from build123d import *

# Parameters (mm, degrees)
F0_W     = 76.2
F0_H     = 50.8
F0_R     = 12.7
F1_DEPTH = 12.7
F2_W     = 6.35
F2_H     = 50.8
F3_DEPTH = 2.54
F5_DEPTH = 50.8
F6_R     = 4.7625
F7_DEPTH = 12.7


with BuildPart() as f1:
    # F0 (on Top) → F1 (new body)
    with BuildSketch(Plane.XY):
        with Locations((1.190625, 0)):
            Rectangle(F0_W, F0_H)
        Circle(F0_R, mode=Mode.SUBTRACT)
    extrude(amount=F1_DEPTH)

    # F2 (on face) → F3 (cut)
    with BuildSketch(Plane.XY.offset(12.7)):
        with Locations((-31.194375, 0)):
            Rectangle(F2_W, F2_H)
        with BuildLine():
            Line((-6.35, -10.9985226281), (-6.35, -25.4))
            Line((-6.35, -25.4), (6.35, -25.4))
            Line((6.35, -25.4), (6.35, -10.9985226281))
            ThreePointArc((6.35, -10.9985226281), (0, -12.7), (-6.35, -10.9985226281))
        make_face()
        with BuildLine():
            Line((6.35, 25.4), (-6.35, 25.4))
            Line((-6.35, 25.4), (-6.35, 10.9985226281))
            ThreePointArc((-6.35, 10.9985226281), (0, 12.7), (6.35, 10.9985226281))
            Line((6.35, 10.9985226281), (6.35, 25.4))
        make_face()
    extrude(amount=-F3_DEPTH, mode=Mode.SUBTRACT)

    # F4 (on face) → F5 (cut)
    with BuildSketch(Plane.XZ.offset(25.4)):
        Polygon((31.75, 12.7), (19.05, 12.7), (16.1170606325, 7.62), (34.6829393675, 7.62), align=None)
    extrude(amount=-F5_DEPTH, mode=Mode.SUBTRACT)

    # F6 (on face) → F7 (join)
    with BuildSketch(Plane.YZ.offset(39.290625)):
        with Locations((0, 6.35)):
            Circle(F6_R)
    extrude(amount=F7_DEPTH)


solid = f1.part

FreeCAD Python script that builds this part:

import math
import FreeCAD as App
import Part
import Sketcher

V = App.Vector
Q = App.Units.Quantity

doc = App.newDocument("Part")
body = doc.addObject("PartDesign::Body", "Body")

# Sketch on XY plane
sketch1 = body.newObject("Sketcher::SketchObject", "Sketch")
sketch1.AttachmentSupport = (doc.getObject("XY_Plane"), [""])
sketch1.MapMode = "FlatFace"
sketch1.addGeometry(Part.LineSegment(V(-37, 25, 0), V(-37, -25, 0)), False)
sketch1.addGeometry(Part.LineSegment(V(-37, -25, 0), V(39, -25, 0)), False)
sketch1.addGeometry(Part.LineSegment(V(39, -25, 0), V(39, 25, 0)), False)
sketch1.addGeometry(Part.LineSegment(V(39, 25, 0), V(-37, 25, 0)), False)
sketch1.addGeometry(Part.Circle(V(0, 0, 0), V(0, 0, 1), 13), False)
sketch1.addConstraint(Sketcher.Constraint("Coincident", 0, 2, 1, 1))
sketch1.addConstraint(Sketcher.Constraint("Coincident", 1, 2, 2, 1))
sketch1.addConstraint(Sketcher.Constraint("Coincident", 2, 2, 3, 1))
sketch1.addConstraint(Sketcher.Constraint("Coincident", 3, 2, 0, 1))
sketch1.addConstraint(Sketcher.Constraint("Vertical", 0))
sketch1.addConstraint(Sketcher.Constraint("Horizontal", 1))
sketch1.addConstraint(Sketcher.Constraint("Vertical", 2))
sketch1.addConstraint(Sketcher.Constraint("Horizontal", 3))
sketch1.addConstraint(Sketcher.Constraint("Coincident", 4, 3, -1, 1))
sketch1.addConstraint(Sketcher.Constraint("Diameter", 4, Q("1 in")))
sketch1.addConstraint(Sketcher.Constraint("DistanceX", 1, 1, 1, 2, Q("3 in")))
sketch1.addConstraint(Sketcher.Constraint("DistanceY", 0, 2, 0, 1, Q("2 in")))
sketch1.addConstraint(Sketcher.Constraint("DistanceY", 0, 2, -1, 1, Q("1 in")))
sketch1.addConstraint(Sketcher.Constraint("DistanceX", 0, 2, -1, 1, Q("1.453125 in")))
pad1 = body.newObject("PartDesign::Pad", "Pad")
pad1.Profile = sketch1
pad1.Length = Q("0.5 in")

# Sketch on XY plane
sketch2 = body.newObject("Sketcher::SketchObject", "Sketch001")
sketch2.AttachmentSupport = (doc.getObject("XY_Plane"), [""])
sketch2.MapMode = "FlatFace"
sketch2.AttachmentOffset = App.Placement(V(0, 0, 0.5 * 25.4), App.Rotation())
sketch2.addGeometry(Part.LineSegment(V(-34, 25, 0), V(-34, -25, 0)), False)
sketch2.addGeometry(Part.LineSegment(V(-34, -25, 0), V(-28, -25, 0)), False)
sketch2.addGeometry(Part.LineSegment(V(-28, -25, 0), V(-28, 25, 0)), False)
sketch2.addGeometry(Part.LineSegment(V(-28, 25, 0), V(-34, 25, 0)), False)
sketch2.addGeometry(Part.LineSegment(V(-6, -11, 0), V(-6, -25, 0)), False)
sketch2.addGeometry(Part.LineSegment(V(-6, -25, 0), V(6, -25, 0)), False)
sketch2.addGeometry(Part.LineSegment(V(6, -25, 0), V(6, -11, 0)), False)
sketch2.addGeometry(Part.ArcOfCircle(Part.Circle(V(0, 0, 0), V(0, 0, 1), 13), math.radians(-120), math.radians(-60)), False)
sketch2.addGeometry(Part.LineSegment(V(6, 25, 0), V(-6, 25, 0)), False)
sketch2.addGeometry(Part.LineSegment(V(-6, 25, 0), V(-6, 11, 0)), False)
sketch2.addGeometry(Part.ArcOfCircle(Part.Circle(V(0, 0, 0), V(0, 0, 1), 13), math.radians(60), math.radians(120)), False)
sketch2.addGeometry(Part.LineSegment(V(6, 11, 0), V(6, 25, 0)), False)
sketch2.addConstraint(Sketcher.Constraint("Coincident", 0, 2, 1, 1))
sketch2.addConstraint(Sketcher.Constraint("Coincident", 1, 2, 2, 1))
sketch2.addConstraint(Sketcher.Constraint("Coincident", 2, 2, 3, 1))
sketch2.addConstraint(Sketcher.Constraint("Coincident", 3, 2, 0, 1))
sketch2.addConstraint(Sketcher.Constraint("Coincident", 4, 2, 5, 1))
sketch2.addConstraint(Sketcher.Constraint("Coincident", 5, 2, 6, 1))
sketch2.addConstraint(Sketcher.Constraint("Coincident", 6, 2, 7, 2))
sketch2.addConstraint(Sketcher.Constraint("Coincident", 7, 1, 4, 1))
sketch2.addConstraint(Sketcher.Constraint("Coincident", 8, 2, 9, 1))
sketch2.addConstraint(Sketcher.Constraint("Coincident", 9, 2, 10, 2))
sketch2.addConstraint(Sketcher.Constraint("Coincident", 10, 1, 11, 1))
sketch2.addConstraint(Sketcher.Constraint("Coincident", 11, 2, 8, 1))
sketch2.addConstraint(Sketcher.Constraint("Vertical", 0))
sketch2.addConstraint(Sketcher.Constraint("Horizontal", 1))
sketch2.addConstraint(Sketcher.Constraint("Vertical", 2))
sketch2.addConstraint(Sketcher.Constraint("Horizontal", 3))
sketch2.addConstraint(Sketcher.Constraint("Vertical", 4))
sketch2.addConstraint(Sketcher.Constraint("Horizontal", 5))
sketch2.addConstraint(Sketcher.Constraint("Vertical", 6))
sketch2.addConstraint(Sketcher.Constraint("Horizontal", 8))
sketch2.addConstraint(Sketcher.Constraint("Vertical", 9))
sketch2.addConstraint(Sketcher.Constraint("Vertical", 11))
sketch2.addConstraint(Sketcher.Constraint("Coincident", 7, 3, -1, 1))
sketch2.addConstraint(Sketcher.Constraint("Coincident", 10, 3, -1, 1))
sketch2.addConstraint(Sketcher.Constraint("Equal", 7, 10))
sketch2.addConstraint(Sketcher.Constraint("Symmetric", 5, 2, 8, 2, -1, 1))
sketch2.addConstraint(Sketcher.Constraint("Horizontal", 1, 2, 4, 2))
sketch2.addConstraint(Sketcher.Constraint("Horizontal", 6, 2, 7, 1))
sketch2.addConstraint(Sketcher.Constraint("Horizontal", 3, 2, 8, 2))
sketch2.addConstraint(Sketcher.Constraint("Horizontal", 9, 2, 10, 1))
sketch2.addConstraint(Sketcher.Constraint("Radius", 7, Q("0.5 in")))
sketch2.addConstraint(Sketcher.Constraint("DistanceY", 0, 2, 0, 1, Q("2 in")))
sketch2.addConstraint(Sketcher.Constraint("DistanceX", 5, 1, 5, 2, Q("0.5 in")))
sketch2.addConstraint(Sketcher.Constraint("DistanceX", 1, 1, 1, 2, Q("0.25 in")))
sketch2.addConstraint(Sketcher.Constraint("DistanceX", 0, 2, -1, 1, Q("34.369375 mm")))
pocket1 = body.newObject("PartDesign::Pocket", "Pocket")
pocket1.Profile = sketch2
pocket1.Length = Q("0.1 in")

# Sketch on XZ plane
sketch3 = body.newObject("Sketcher::SketchObject", "Sketch002")
sketch3.AttachmentSupport = (doc.getObject("XZ_Plane"), [""])
sketch3.MapMode = "FlatFace"
sketch3.AttachmentOffset = App.Placement(V(0, 0, 1 * 25.4), App.Rotation())
sketch3.addGeometry(Part.LineSegment(V(32, 13, 0), V(19, 13, 0)), False)
sketch3.addGeometry(Part.LineSegment(V(19, 13, 0), V(16, 8, 0)), False)
sketch3.addGeometry(Part.LineSegment(V(16, 8, 0), V(35, 8, 0)), False)
sketch3.addGeometry(Part.LineSegment(V(35, 8, 0), V(32, 13, 0)), False)
sketch3.addConstraint(Sketcher.Constraint("Coincident", 0, 2, 1, 1))
sketch3.addConstraint(Sketcher.Constraint("Coincident", 1, 2, 2, 1))
sketch3.addConstraint(Sketcher.Constraint("Coincident", 2, 2, 3, 1))
sketch3.addConstraint(Sketcher.Constraint("Coincident", 3, 2, 0, 1))
sketch3.addConstraint(Sketcher.Constraint("Horizontal", 0))
sketch3.addConstraint(Sketcher.Constraint("Horizontal", 2))
sketch3.addConstraint(Sketcher.Constraint("Equal", 1, 3))
sketch3.addConstraint(Sketcher.Constraint("DistanceX", 0, 2, 0, 1, Q("0.5 in")))
sketch3.addConstraint(Sketcher.Constraint("Angle", 1, Q("-120 deg")))
sketch3.addConstraint(Sketcher.Constraint("DistanceY", -1, 1, 0, 2, Q("0.5 in")))
sketch3.addConstraint(Sketcher.Constraint("DistanceY", -1, 1, 1, 2, Q("0.3 in")))
sketch3.addConstraint(Sketcher.Constraint("DistanceX", -1, 1, 0, 2, Q("0.75 in")))
pocket2 = body.newObject("PartDesign::Pocket", "Pocket001")
pocket2.Profile = sketch3
pocket2.Length = Q("2 in")

# Sketch on YZ plane
sketch4 = body.newObject("Sketcher::SketchObject", "Sketch003")
sketch4.AttachmentSupport = (doc.getObject("YZ_Plane"), [""])
sketch4.MapMode = "FlatFace"
sketch4.AttachmentOffset = App.Placement(V(0, 0, 1.546875 * 25.4), App.Rotation())
sketch4.addGeometry(Part.Circle(V(0, 6.3, 0), V(0, 0, 1), 4.8), False)
sketch4.addConstraint(Sketcher.Constraint("PointOnObject", 0, 3, -2))
sketch4.addConstraint(Sketcher.Constraint("Diameter", 0, Q("0.375 in")))
sketch4.addConstraint(Sketcher.Constraint("DistanceY", -1, 1, 0, 3, Q("0.25 in")))
pad2 = body.newObject("PartDesign::Pad", "Pad001")
pad2.Profile = sketch4
pad2.Length = Q("0.5 in")

doc.recompute()
